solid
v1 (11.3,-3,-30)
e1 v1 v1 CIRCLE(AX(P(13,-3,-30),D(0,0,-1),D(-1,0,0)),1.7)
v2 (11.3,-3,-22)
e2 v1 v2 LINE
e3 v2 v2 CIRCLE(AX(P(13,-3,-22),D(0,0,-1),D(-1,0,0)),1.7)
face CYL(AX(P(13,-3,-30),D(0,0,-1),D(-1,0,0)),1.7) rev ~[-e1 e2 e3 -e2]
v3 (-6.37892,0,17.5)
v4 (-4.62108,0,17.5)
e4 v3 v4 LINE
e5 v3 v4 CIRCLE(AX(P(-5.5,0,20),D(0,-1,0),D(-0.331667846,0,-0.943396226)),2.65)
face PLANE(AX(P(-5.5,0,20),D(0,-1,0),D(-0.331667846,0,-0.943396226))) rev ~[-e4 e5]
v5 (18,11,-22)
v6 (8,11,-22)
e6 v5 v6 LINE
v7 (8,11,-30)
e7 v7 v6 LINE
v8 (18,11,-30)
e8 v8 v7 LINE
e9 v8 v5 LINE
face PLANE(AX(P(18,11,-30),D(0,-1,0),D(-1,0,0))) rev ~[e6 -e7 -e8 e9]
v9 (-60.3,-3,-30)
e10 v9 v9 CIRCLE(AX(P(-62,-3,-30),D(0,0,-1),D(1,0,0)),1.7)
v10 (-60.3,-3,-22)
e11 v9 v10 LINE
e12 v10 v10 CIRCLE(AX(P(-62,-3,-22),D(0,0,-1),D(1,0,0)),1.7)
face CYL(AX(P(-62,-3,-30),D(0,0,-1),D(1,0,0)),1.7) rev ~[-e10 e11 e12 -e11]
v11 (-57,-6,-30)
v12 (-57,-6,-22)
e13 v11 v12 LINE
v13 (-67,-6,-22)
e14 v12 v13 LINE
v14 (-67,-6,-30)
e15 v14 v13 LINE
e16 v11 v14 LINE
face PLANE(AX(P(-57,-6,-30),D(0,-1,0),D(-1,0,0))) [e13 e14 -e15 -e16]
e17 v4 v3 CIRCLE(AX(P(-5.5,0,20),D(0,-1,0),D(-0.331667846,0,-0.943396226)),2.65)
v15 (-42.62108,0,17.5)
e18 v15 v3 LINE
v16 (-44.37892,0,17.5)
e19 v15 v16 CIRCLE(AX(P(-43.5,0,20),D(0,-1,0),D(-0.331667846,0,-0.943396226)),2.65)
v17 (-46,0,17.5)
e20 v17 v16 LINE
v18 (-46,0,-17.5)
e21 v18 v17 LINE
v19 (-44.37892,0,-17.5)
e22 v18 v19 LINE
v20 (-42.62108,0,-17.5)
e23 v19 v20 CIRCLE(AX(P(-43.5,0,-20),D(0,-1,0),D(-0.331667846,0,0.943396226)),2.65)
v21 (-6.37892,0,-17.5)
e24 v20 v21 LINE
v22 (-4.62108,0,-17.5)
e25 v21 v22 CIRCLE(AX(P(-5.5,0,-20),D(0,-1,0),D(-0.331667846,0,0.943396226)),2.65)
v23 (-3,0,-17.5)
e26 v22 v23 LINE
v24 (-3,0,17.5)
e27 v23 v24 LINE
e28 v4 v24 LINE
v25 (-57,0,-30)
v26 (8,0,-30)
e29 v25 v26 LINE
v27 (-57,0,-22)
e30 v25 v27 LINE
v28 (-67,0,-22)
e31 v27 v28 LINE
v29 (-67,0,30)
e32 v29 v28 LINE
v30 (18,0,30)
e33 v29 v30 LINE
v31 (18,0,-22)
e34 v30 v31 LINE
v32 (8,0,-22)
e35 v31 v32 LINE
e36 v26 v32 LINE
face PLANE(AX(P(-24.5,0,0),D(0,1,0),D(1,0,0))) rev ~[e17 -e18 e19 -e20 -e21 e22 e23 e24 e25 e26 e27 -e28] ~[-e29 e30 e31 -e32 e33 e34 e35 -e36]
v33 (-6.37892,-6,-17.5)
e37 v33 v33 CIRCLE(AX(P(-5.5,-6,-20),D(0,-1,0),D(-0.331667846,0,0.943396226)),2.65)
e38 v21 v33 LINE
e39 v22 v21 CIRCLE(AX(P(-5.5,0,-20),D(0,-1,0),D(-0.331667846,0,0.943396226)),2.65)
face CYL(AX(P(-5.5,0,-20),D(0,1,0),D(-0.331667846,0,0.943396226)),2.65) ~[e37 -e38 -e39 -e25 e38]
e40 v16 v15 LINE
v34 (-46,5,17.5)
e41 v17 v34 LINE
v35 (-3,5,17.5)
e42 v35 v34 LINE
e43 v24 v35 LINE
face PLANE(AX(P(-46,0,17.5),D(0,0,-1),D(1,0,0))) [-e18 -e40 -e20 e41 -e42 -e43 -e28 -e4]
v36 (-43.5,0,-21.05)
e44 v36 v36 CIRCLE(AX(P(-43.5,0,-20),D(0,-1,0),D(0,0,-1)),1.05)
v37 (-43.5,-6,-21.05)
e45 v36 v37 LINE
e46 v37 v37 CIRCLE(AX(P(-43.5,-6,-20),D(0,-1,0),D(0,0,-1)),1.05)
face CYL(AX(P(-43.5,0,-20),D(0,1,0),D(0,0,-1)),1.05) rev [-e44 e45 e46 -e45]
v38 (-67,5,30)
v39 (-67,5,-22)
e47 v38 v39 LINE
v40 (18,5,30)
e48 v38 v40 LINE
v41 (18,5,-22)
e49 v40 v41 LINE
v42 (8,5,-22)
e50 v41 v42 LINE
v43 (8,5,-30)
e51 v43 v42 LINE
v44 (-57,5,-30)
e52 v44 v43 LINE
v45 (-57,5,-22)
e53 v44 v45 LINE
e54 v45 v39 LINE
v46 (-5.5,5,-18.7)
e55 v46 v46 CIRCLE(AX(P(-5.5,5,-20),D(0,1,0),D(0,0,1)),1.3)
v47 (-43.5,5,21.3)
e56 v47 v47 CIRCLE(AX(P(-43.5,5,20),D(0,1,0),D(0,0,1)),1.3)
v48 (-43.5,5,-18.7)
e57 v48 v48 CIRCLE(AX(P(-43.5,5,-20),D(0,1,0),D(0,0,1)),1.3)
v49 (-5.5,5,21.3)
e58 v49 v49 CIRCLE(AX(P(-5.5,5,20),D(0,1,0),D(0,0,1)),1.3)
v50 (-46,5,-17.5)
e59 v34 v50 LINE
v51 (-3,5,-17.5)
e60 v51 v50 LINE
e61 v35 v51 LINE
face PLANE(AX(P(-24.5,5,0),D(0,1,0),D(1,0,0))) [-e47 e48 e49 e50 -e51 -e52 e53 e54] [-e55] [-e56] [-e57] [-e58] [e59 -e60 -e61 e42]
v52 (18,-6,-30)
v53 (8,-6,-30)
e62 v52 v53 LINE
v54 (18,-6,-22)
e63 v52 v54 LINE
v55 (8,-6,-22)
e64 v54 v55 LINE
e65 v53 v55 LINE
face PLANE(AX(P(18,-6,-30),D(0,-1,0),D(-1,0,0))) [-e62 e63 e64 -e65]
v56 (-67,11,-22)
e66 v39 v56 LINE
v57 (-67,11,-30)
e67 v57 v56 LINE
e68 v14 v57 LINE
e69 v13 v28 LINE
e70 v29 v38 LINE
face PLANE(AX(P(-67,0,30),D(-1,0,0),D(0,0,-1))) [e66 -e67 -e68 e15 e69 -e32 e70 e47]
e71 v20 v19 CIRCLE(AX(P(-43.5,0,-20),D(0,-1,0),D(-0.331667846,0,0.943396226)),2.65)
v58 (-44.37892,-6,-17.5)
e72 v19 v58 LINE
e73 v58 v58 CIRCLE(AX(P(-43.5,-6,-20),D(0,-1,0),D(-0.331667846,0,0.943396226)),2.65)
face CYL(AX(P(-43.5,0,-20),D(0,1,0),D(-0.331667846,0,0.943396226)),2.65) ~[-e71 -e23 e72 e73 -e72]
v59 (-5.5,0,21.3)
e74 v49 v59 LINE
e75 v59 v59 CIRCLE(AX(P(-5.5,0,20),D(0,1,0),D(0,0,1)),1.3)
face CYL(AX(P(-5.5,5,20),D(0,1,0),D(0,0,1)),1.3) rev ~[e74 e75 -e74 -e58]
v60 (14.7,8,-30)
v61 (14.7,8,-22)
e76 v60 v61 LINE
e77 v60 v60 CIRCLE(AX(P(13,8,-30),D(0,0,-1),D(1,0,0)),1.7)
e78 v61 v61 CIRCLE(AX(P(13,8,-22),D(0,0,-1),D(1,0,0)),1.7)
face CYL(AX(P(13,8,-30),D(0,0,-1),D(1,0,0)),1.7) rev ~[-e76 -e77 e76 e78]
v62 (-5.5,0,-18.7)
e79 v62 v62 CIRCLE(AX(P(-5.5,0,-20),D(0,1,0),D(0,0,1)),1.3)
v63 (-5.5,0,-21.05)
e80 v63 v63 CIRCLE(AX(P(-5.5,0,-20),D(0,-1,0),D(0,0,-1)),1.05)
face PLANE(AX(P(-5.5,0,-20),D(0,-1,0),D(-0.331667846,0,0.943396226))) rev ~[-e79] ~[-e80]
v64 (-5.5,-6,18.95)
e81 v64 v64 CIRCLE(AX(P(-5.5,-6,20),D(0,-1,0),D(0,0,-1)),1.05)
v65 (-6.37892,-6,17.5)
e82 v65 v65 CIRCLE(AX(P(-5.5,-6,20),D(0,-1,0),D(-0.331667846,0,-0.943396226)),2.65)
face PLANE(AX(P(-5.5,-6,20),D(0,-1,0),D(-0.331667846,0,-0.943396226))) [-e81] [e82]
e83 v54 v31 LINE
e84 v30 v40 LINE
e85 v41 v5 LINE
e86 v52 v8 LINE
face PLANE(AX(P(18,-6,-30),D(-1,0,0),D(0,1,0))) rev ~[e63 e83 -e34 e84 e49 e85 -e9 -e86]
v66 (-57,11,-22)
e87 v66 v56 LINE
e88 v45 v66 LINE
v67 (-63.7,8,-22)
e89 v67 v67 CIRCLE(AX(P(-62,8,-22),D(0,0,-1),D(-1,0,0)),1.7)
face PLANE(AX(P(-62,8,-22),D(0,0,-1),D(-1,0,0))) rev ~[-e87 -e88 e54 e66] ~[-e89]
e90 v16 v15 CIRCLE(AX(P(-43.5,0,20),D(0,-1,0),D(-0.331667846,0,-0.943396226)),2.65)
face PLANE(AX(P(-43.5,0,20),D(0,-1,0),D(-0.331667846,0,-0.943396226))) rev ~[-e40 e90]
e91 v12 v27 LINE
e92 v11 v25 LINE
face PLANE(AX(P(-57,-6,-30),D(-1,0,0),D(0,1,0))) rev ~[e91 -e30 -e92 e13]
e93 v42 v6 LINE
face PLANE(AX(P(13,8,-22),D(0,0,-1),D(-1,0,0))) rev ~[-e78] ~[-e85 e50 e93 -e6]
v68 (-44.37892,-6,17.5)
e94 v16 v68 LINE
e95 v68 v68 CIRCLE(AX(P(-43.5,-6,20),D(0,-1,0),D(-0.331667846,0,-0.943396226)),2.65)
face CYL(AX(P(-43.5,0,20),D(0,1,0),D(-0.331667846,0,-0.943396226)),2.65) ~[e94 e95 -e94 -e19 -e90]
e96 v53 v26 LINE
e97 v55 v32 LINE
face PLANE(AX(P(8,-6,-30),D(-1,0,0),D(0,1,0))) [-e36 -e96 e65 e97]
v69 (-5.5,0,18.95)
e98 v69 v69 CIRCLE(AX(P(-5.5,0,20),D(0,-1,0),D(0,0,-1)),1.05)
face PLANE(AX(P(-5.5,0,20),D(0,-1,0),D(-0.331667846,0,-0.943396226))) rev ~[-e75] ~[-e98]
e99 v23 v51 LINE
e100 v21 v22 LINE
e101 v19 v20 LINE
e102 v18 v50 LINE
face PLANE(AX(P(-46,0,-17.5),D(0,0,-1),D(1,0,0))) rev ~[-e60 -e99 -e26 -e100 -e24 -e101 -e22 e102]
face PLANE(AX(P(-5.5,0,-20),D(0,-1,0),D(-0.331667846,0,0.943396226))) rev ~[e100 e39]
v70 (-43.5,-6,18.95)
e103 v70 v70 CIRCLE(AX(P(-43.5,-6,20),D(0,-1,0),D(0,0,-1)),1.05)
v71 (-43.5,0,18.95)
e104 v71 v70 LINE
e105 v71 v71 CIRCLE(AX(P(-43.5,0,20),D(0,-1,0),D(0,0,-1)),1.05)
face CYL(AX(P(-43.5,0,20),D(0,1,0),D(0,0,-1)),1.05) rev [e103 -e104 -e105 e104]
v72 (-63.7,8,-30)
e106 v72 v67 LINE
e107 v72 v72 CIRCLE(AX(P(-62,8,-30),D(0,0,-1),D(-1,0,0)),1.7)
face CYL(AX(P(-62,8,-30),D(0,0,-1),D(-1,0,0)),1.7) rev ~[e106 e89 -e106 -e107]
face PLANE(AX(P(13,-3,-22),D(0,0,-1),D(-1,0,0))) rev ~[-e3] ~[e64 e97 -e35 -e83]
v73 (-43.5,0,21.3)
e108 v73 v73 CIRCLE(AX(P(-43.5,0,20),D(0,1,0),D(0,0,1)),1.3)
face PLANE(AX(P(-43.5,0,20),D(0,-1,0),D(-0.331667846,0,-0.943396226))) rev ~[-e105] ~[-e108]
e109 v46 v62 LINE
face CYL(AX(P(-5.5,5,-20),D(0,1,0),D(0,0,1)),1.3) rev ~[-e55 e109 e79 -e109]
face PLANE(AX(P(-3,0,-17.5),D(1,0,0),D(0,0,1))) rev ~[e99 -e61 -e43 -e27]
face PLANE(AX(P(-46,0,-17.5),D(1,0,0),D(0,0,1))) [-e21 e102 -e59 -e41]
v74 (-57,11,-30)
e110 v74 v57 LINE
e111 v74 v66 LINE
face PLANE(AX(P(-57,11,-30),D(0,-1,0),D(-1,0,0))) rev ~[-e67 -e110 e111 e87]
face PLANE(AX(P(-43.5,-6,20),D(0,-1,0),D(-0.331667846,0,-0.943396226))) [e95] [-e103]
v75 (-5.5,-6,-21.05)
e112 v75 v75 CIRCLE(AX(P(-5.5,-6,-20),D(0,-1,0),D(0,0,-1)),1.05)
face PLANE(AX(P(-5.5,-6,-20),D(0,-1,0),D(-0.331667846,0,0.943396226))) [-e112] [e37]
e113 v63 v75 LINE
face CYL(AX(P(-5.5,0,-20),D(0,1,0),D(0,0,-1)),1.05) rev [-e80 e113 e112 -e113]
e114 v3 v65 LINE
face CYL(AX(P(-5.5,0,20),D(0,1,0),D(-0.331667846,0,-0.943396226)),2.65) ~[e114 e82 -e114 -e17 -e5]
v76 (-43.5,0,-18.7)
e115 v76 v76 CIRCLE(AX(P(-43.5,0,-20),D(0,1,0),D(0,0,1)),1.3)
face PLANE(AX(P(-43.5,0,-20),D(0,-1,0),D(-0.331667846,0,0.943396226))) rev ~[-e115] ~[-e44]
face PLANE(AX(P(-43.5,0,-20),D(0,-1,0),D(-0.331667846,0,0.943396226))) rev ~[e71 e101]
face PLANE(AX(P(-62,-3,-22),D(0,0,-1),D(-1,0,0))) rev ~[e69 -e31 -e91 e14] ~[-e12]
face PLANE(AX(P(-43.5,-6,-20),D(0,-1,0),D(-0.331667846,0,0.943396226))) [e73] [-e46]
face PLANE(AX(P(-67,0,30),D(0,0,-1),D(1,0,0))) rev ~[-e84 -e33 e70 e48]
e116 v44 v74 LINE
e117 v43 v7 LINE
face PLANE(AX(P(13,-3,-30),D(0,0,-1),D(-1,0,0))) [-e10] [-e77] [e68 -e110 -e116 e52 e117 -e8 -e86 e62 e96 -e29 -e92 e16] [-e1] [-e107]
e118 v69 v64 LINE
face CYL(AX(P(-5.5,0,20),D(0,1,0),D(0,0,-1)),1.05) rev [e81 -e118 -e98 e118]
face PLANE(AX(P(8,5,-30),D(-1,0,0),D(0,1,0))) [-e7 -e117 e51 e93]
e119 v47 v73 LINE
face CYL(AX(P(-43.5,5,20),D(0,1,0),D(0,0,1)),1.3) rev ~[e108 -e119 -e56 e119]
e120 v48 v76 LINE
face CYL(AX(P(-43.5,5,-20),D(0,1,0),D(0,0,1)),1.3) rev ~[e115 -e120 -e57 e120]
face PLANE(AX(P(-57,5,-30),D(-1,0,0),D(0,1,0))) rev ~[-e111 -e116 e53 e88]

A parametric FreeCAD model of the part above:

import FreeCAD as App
import Part
import Sketcher

V = App.Vector


def add_polygon(sketch, points):
    """Adds a closed chain of lines whose ends are joined by coincident constraints."""
    first, n = sketch.GeometryCount, len(points)
    for a, b in zip(points, points[1:] + points[:1]):
        sketch.addGeometry(Part.LineSegment(App.Vector(*a, 0), App.Vector(*b, 0)), False)
    for i in range(n):
        sketch.addConstraint(Sketcher.Constraint("Coincident", first + i, 2, first + (i + 1) % n, 1))

doc = App.newDocument("Part")
params = doc.addObject("Spreadsheet::Sheet", "Params")
for row, (alias, value) in enumerate([
    ("sketch1_width", "85 mm"),
    ("sketch1_height", "60 mm"),
    ("pad1_length", "5 mm"),
    ("sketch2_width", "43 mm"),
    ("sketch2_height", "35 mm"),
    ("pocket1_length", "10 mm"),
    ("sketch3_diameter", "2.6 mm"),
    ("sketch4_diameter", "2.6 mm"),
    ("sketch5_diameter", "2.6 mm"),
    ("sketch6_diameter", "2.6 mm"),
    ("sketch7_diameter", "5.3 mm"),
    ("sketch7_diameter2", "2.1 mm"),
    ("pad2_length", "6 mm"),
    ("sketch8_diameter", "3.4 mm"),
    ("sketch8_width", "10 mm"),
    ("sketch8_height", "6 mm"),
    ("pad3_length", "8 mm"),
], start=1):
    params.set(f"A{row}", alias)
    params.set(f"B{row}", "=" + value)
    params.setAlias(f"B{row}", alias)

body = doc.addObject("PartDesign::Body", "Body")

# Sketch on XZ plane
sketch1 = doc.addObject("Sketcher::SketchObject", "Sketch")
body.addObject(sketch1)
sketch1.AttachmentSupport = (doc.XZ_Plane, [""])
sketch1.MapMode = "FlatFace"
add_polygon(sketch1, [(-67, -30), (-67, 30), (18, 30), (18, -30)])  # lines 0-3
sketch1.addConstraint(Sketcher.Constraint("Vertical", 0))
sketch1.addConstraint(Sketcher.Constraint("Horizontal", 1))
sketch1.addConstraint(Sketcher.Constraint("Vertical", 2))
sketch1.addConstraint(Sketcher.Constraint("Horizontal", 3))
sketch1.addConstraint(Sketcher.Constraint("DistanceX", 1, 1, 1, 2, 85.0))
sketch1.addConstraint(Sketcher.Constraint("DistanceY", 0, 1, 0, 2, 60.0))
sketch1.addConstraint(Sketcher.Constraint("DistanceX", 0, 2, -1, 1, 67.0))
sketch1.addConstraint(Sketcher.Constraint("DistanceY", -1, 1, 0, 2, 30.0))
sketch1.setExpression("Constraints[8]", "Params.sketch1_width")
sketch1.setExpression("Constraints[9]", "Params.sketch1_height")
pad1 = doc.addObject("PartDesign::Pad", "Pad")
body.addObject(pad1)
pad1.Profile = sketch1
pad1.setExpression("Length", "Params.pad1_length")
pad1.Reversed = True

# Sketch on XZ plane
sketch2 = doc.addObject("Sketcher::SketchObject", "Sketch001")
body.addObject(sketch2)
sketch2.AttachmentSupport = (doc.XZ_Plane, [""])
sketch2.MapMode = "FlatFace"
add_polygon(sketch2, [(-46, 17.5), (-46, -17.5), (-3, -17.5), (-3, 17.5)])  # lines 0-3
sketch2.addConstraint(Sketcher.Constraint("Vertical", 0))
sketch2.addConstraint(Sketcher.Constraint("Horizontal", 1))
sketch2.addConstraint(Sketcher.Constraint("Vertical", 2))
sketch2.addConstraint(Sketcher.Constraint("Horizontal", 3))
sketch2.addConstraint(Sketcher.Constraint("DistanceX", 1, 1, 1, 2, 43.0))
sketch2.addConstraint(Sketcher.Constraint("DistanceY", 0, 2, 0, 1, 35.0))
sketch2.addConstraint(Sketcher.Constraint("DistanceX", 0, 2, -1, 1, 46.0))
sketch2.addConstraint(Sketcher.Constraint("DistanceY", 0, 2, -1, 1, 17.5))
sketch2.setExpression("Constraints[8]", "Params.sketch2_width")
sketch2.setExpression("Constraints[9]", "Params.sketch2_height")
pocket1 = doc.addObject("PartDesign::Pocket", "Pocket")
body.addObject(pocket1)
pocket1.Profile = sketch2
pocket1.setExpression("Length", "Params.pocket1_length")

# Sketch on XZ plane
sketch3 = doc.addObject("Sketcher::SketchObject", "Sketch002")
body.addObject(sketch3)
sketch3.AttachmentSupport = (doc.XZ_Plane, [""])
sketch3.MapMode = "FlatFace"
sketch3.AttachmentOffset = App.Placement(V(0, 0, -5), App.Rotation())
sketch3.addGeometry(Part.Circle(V(-43.5, -20, 0), V(0, 0, 1), 1.3), False)
sketch3.addConstraint(Sketcher.Constraint("Diameter", 0, 2.6))
sketch3.addConstraint(Sketcher.Constraint("DistanceY", 0, 3, -1, 1, 20.0))
sketch3.addConstraint(Sketcher.Constraint("DistanceX", 0, 3, -1, 1, 43.5))
sketch3.setExpression("Constraints[0]", "Params.sketch3_diameter")
pocket2 = doc.addObject("PartDesign::Pocket", "Pocket001")
body.addObject(pocket2)
pocket2.Profile = sketch3
pocket2.Type = "UpToFirst"
pocket2.Reversed = True

# Sketch on XZ plane
sketch4 = doc.addObject("Sketcher::SketchObject", "Sketch003")
body.addObject(sketch4)
sketch4.AttachmentSupport = (doc.XZ_Plane, [""])
sketch4.MapMode = "FlatFace"
sketch4.AttachmentOffset = App.Placement(V(0, 0, -5), App.Rotation())
sketch4.addGeometry(Part.Circle(V(-5.5, -20, 0), V(0, 0, 1), 1.3), False)
sketch4.addConstraint(Sketcher.Constraint("Diameter", 0, 2.6))
sketch4.addConstraint(Sketcher.Constraint("DistanceY", 0, 3, -1, 1, 20.0))
sketch4.addConstraint(Sketcher.Constraint("DistanceX", 0, 3, -1, 1, 5.5))
sketch4.setExpression("Constraints[0]", "Params.sketch4_diameter")
pocket3 = doc.addObject("PartDesign::Pocket", "Pocket002")
body.addObject(pocket3)
pocket3.Profile = sketch4
pocket3.Type = "UpToFirst"
pocket3.Reversed = True

# Sketch on XZ plane
sketch5 = doc.addObject("Sketcher::SketchObject", "Sketch004")
body.addObject(sketch5)
sketch5.AttachmentSupport = (doc.XZ_Plane, [""])
sketch5.MapMode = "FlatFace"
sketch5.AttachmentOffset = App.Placement(V(0, 0, -5), App.Rotation())
sketch5.addGeometry(Part.Circle(V(-5.5, 20, 0), V(0, 0, 1), 1.3), False)
sketch5.addConstraint(Sketcher.Constraint("Diameter", 0, 2.6))
sketch5.addConstraint(Sketcher.Constraint("DistanceY", -1, 1, 0, 3, 20.0))
sketch5.addConstraint(Sketcher.Constraint("DistanceX", 0, 3, -1, 1, 5.5))
sketch5.setExpression("Constraints[0]", "Params.sketch5_diameter")
pocket4 = doc.addObject("PartDesign::Pocket", "Pocket003")
body.addObject(pocket4)
pocket4.Profile = sketch5
pocket4.Type = "UpToFirst"
pocket4.Reversed = True

# Sketch on XZ plane
sketch6 = doc.addObject("Sketcher::SketchObject", "Sketch005")
body.addObject(sketch6)
sketch6.AttachmentSupport = (doc.XZ_Plane, [""])
sketch6.MapMode = "FlatFace"
sketch6.AttachmentOffset = App.Placement(V(0, 0, -5), App.Rotation())
sketch6.addGeometry(Part.Circle(V(-43.5, 20, 0), V(0, 0, 1), 1.3), False)
sketch6.addConstraint(Sketcher.Constraint("Diameter", 0, 2.6))
sketch6.addConstraint(Sketcher.Constraint("DistanceY", -1, 1, 0, 3, 20.0))
sketch6.addConstraint(Sketcher.Constraint("DistanceX", 0, 3, -1, 1, 43.5))
sketch6.setExpression("Constraints[0]", "Params.sketch6_diameter")
pocket5 = doc.addObject("PartDesign::Pocket", "Pocket004")
body.addObject(pocket5)
pocket5.Profile = sketch6
pocket5.Type = "UpToFirst"
pocket5.Reversed = True

# Sketch on XZ plane
sketch7 = doc.addObject("Sketcher::SketchObject", "Sketch006")
body.addObject(sketch7)
sketch7.AttachmentSupport = (doc.XZ_Plane, [""])
sketch7.MapMode = "FlatFace"
sketch7.addGeometry(Part.Circle(V(-43.5, 20, 0), V(0, 0, 1), 2.65), False)
sketch7.addGeometry(Part.Circle(V(-43.5, 20, 0), V(0, 0, 1), 1.05), False)
sketch7.addGeometry(Part.Circle(V(-43.5, -20, 0), V(0, 0, 1), 2.65), False)
sketch7.addGeometry(Part.Circle(V(-43.5, -20, 0), V(0, 0, 1), 1.05), False)
sketch7.addGeometry(Part.Circle(V(-5.5, 20, 0), V(0, 0, 1), 2.65), False)
sketch7.addGeometry(Part.Circle(V(-5.5, 20, 0), V(0, 0, 1), 1.05), False)
sketch7.addGeometry(Part.Circle(V(-5.5, -20, 0), V(0, 0, 1), 2.65), False)
sketch7.addGeometry(Part.Circle(V(-5.5, -20, 0), V(0, 0, 1), 1.05), False)
sketch7.addConstraint(Sketcher.Constraint("Coincident", 1, 3, 0, 3))
sketch7.addConstraint(Sketcher.Constraint("Coincident", 3, 3, 2, 3))
sketch7.addConstraint(Sketcher.Constraint("Coincident", 5, 3, 4, 3))
sketch7.addConstraint(Sketcher.Constraint("Coincident", 7, 3, 6, 3))
sketch7.addConstraint(Sketcher.Constraint("Equal", 0, 2))
sketch7.addConstraint(Sketcher.Constraint("Equal", 1, 3))
sketch7.addConstraint(Sketcher.Constraint("Equal", 2, 4))
sketch7.addConstraint(Sketcher.Constraint("Equal", 3, 5))
sketch7.addConstraint(Sketcher.Constraint("Equal", 4, 6))
sketch7.addConstraint(Sketcher.Constraint("Equal", 5, 7))
sketch7.addConstraint(Sketcher.Constraint("Symmetric", 0, 3, 2, 3, -1))
sketch7.addConstraint(Sketcher.Constraint("Symmetric", 4, 3, 6, 3, -1))
sketch7.addConstraint(Sketcher.Constraint("Horizontal", 1, 3, 4, 3))
sketch7.addConstraint(Sketcher.Constraint("Diameter", 0, 5.3))
sketch7.addConstraint(Sketcher.Constraint("Diameter", 1, 2.1))
sketch7.addConstraint(Sketcher.Constraint("DistanceY", -1, 1, 0, 3, 20.0))
sketch7.addConstraint(Sketcher.Constraint("DistanceX", 0, 3, 4, 3, 38.0))
sketch7.addConstraint(Sketcher.Constraint("DistanceX", 0, 3, -1, 1, 43.5))
sketch7.setExpression("Constraints[13]", "Params.sketch7_diameter")
sketch7.setExpression("Constraints[14]", "Params.sketch7_diameter2")
pad2 = doc.addObject("PartDesign::Pad", "Pad001")
body.addObject(pad2)
pad2.Profile = sketch7
pad2.setExpression("Length", "Params.pad2_length")

# Sketch on XY plane
sketch8 = doc.addObject("Sketcher::SketchObject", "Sketch007")
body.addObject(sketch8)
sketch8.AttachmentSupport = (doc.XY_Plane, [""])
sketch8.MapMode = "FlatFace"
sketch8.AttachmentOffset = App.Placement(V(0, 0, -30), App.Rotation())
add_polygon(sketch8, [(18, 0), (18, -6), (8, -6), (8, 0)])  # lines 0-3
sketch8.addGeometry(Part.Circle(V(13, -3, 0), V(0, 0, 1), 1.7), False)  # 4
add_polygon(sketch8, [(-57, 0), (-57, -6), (-67, -6), (-67, 0)])  # lines 5-8
sketch8.addGeometry(Part.Circle(V(-62, -3, 0), V(0, 0, 1), 1.7), False)  # 9
add_polygon(sketch8, [(-57, 11), (-57, 5), (-67, 5), (-67, 11)])  # lines 10-13
sketch8.addGeometry(Part.Circle(V(-62, 8, 0), V(0, 0, 1), 1.7), False)  # 14
add_polygon(sketch8, [(18, 11), (18, 5), (8, 5), (8, 11)])  # lines 15-18
sketch8.addGeometry(Part.Circle(V(13, 8, 0), V(0, 0, 1), 1.7), False)  # 19
sketch8.addConstraint(Sketcher.Constraint("Vertical", 0))
sketch8.addConstraint(Sketcher.Constraint("Horizontal", 1))
sketch8.addConstraint(Sketcher.Constraint("Vertical", 2))
sketch8.addConstraint(Sketcher.Constraint("Horizontal", 3))
sketch8.addConstraint(Sketcher.Constraint("Vertical", 5))
sketch8.addConstraint(Sketcher.Constraint("Horizontal", 6))
sketch8.addConstraint(Sketcher.Constraint("Vertical", 7))
sketch8.addConstraint(Sketcher.Constraint("Horizontal", 8))
sketch8.addConstraint(Sketcher.Constraint("Vertical", 10))
sketch8.addConstraint(Sketcher.Constraint("Horizontal", 11))
sketch8.addConstraint(Sketcher.Constraint("Vertical", 12))
sketch8.addConstraint(Sketcher.Constraint("Horizontal", 13))
sketch8.addConstraint(Sketcher.Constraint("Vertical", 15))
sketch8.addConstraint(Sketcher.Constraint("Horizontal", 16))
sketch8.addConstraint(Sketcher.Constraint("Vertical", 17))
sketch8.addConstraint(Sketcher.Constraint("Horizontal", 18))
sketch8.addConstraint(Sketcher.Constraint("Equal", 4, 9))
sketch8.addConstraint(Sketcher.Constraint("Equal", 9, 14))
sketch8.addConstraint(Sketcher.Constraint("Equal", 14, 19))
sketch8.addConstraint(Sketcher.Constraint("PointOnObject", 2, 2, -1))
sketch8.addConstraint(Sketcher.Constraint("PointOnObject", 7, 2, -1))
sketch8.addConstraint(Sketcher.Constraint("Horizontal", 4, 3, 9, 3))
sketch8.addConstraint(Sketcher.Constraint("Horizontal", 14, 3, 19, 3))
sketch8.addConstraint(Sketcher.Constraint("Horizontal", 1, 2, 5, 2))
sketch8.addConstraint(Sketcher.Constraint("Horizontal", 11, 2, 15, 2))
sketch8.addConstraint(Sketcher.Constraint("Horizontal", 13, 2, 17, 2))
sketch8.addConstraint(Sketcher.Constraint("Vertical", 9, 3, 14, 3))
sketch8.addConstraint(Sketcher.Constraint("Vertical", 4, 3, 19, 3))
sketch8.addConstraint(Sketcher.Constraint("Vertical", 8, 2, 10, 2))
sketch8.addConstraint(Sketcher.Constraint("Vertical", 7, 2, 11, 2))
sketch8.addConstraint(Sketcher.Constraint("Vertical", 3, 2, 15, 2))
sketch8.addConstraint(Sketcher.Constraint("Vertical", 2, 2, 16, 2))
sketch8.addConstraint(Sketcher.Constraint("Equal", 3, 6))
sketch8.addConstraint(Sketcher.Constraint("Equal", 7, 10))
sketch8.addConstraint(Sketcher.Constraint("Diameter", 4, 3.4))
sketch8.addConstraint(Sketcher.Constraint("DistanceX", 1, 2, 1, 1, 10.0))
sketch8.addConstraint(Sketcher.Constraint("DistanceY", 0, 2, 0, 1, 6.0))
sketch8.addConstraint(Sketcher.Constraint("DistanceX", -1, 1, 4, 3, 13.0))
sketch8.addConstraint(Sketcher.Constraint("DistanceY", 4, 3, -1, 1, 3.0))
sketch8.addConstraint(Sketcher.Constraint("DistanceX", 9, 3, -1, 1, 62.0))
sketch8.addConstraint(Sketcher.Constraint("DistanceY", -1, 1, 14, 3, 8.0))
sketch8.addConstraint(Sketcher.Constraint("DistanceX", -1, 1, 0, 2, 18.0))
sketch8.addConstraint(Sketcher.Constraint("DistanceX", 5, 2, -1, 1, 57.0))
sketch8.addConstraint(Sketcher.Constraint("DistanceY", -1, 1, 10, 2, 5.0))
sketch8.setExpression("Constraints[50]", "Params.sketch8_diameter")
sketch8.setExpression("Constraints[51]", "Params.sketch8_width")
sketch8.setExpression("Constraints[52]", "Params.sketch8_height")
pad3 = doc.addObject("PartDesign::Pad", "Pad002")
body.addObject(pad3)
pad3.Profile = sketch8
pad3.setExpression("Length", "Params.pad3_length")

doc.recompute()
